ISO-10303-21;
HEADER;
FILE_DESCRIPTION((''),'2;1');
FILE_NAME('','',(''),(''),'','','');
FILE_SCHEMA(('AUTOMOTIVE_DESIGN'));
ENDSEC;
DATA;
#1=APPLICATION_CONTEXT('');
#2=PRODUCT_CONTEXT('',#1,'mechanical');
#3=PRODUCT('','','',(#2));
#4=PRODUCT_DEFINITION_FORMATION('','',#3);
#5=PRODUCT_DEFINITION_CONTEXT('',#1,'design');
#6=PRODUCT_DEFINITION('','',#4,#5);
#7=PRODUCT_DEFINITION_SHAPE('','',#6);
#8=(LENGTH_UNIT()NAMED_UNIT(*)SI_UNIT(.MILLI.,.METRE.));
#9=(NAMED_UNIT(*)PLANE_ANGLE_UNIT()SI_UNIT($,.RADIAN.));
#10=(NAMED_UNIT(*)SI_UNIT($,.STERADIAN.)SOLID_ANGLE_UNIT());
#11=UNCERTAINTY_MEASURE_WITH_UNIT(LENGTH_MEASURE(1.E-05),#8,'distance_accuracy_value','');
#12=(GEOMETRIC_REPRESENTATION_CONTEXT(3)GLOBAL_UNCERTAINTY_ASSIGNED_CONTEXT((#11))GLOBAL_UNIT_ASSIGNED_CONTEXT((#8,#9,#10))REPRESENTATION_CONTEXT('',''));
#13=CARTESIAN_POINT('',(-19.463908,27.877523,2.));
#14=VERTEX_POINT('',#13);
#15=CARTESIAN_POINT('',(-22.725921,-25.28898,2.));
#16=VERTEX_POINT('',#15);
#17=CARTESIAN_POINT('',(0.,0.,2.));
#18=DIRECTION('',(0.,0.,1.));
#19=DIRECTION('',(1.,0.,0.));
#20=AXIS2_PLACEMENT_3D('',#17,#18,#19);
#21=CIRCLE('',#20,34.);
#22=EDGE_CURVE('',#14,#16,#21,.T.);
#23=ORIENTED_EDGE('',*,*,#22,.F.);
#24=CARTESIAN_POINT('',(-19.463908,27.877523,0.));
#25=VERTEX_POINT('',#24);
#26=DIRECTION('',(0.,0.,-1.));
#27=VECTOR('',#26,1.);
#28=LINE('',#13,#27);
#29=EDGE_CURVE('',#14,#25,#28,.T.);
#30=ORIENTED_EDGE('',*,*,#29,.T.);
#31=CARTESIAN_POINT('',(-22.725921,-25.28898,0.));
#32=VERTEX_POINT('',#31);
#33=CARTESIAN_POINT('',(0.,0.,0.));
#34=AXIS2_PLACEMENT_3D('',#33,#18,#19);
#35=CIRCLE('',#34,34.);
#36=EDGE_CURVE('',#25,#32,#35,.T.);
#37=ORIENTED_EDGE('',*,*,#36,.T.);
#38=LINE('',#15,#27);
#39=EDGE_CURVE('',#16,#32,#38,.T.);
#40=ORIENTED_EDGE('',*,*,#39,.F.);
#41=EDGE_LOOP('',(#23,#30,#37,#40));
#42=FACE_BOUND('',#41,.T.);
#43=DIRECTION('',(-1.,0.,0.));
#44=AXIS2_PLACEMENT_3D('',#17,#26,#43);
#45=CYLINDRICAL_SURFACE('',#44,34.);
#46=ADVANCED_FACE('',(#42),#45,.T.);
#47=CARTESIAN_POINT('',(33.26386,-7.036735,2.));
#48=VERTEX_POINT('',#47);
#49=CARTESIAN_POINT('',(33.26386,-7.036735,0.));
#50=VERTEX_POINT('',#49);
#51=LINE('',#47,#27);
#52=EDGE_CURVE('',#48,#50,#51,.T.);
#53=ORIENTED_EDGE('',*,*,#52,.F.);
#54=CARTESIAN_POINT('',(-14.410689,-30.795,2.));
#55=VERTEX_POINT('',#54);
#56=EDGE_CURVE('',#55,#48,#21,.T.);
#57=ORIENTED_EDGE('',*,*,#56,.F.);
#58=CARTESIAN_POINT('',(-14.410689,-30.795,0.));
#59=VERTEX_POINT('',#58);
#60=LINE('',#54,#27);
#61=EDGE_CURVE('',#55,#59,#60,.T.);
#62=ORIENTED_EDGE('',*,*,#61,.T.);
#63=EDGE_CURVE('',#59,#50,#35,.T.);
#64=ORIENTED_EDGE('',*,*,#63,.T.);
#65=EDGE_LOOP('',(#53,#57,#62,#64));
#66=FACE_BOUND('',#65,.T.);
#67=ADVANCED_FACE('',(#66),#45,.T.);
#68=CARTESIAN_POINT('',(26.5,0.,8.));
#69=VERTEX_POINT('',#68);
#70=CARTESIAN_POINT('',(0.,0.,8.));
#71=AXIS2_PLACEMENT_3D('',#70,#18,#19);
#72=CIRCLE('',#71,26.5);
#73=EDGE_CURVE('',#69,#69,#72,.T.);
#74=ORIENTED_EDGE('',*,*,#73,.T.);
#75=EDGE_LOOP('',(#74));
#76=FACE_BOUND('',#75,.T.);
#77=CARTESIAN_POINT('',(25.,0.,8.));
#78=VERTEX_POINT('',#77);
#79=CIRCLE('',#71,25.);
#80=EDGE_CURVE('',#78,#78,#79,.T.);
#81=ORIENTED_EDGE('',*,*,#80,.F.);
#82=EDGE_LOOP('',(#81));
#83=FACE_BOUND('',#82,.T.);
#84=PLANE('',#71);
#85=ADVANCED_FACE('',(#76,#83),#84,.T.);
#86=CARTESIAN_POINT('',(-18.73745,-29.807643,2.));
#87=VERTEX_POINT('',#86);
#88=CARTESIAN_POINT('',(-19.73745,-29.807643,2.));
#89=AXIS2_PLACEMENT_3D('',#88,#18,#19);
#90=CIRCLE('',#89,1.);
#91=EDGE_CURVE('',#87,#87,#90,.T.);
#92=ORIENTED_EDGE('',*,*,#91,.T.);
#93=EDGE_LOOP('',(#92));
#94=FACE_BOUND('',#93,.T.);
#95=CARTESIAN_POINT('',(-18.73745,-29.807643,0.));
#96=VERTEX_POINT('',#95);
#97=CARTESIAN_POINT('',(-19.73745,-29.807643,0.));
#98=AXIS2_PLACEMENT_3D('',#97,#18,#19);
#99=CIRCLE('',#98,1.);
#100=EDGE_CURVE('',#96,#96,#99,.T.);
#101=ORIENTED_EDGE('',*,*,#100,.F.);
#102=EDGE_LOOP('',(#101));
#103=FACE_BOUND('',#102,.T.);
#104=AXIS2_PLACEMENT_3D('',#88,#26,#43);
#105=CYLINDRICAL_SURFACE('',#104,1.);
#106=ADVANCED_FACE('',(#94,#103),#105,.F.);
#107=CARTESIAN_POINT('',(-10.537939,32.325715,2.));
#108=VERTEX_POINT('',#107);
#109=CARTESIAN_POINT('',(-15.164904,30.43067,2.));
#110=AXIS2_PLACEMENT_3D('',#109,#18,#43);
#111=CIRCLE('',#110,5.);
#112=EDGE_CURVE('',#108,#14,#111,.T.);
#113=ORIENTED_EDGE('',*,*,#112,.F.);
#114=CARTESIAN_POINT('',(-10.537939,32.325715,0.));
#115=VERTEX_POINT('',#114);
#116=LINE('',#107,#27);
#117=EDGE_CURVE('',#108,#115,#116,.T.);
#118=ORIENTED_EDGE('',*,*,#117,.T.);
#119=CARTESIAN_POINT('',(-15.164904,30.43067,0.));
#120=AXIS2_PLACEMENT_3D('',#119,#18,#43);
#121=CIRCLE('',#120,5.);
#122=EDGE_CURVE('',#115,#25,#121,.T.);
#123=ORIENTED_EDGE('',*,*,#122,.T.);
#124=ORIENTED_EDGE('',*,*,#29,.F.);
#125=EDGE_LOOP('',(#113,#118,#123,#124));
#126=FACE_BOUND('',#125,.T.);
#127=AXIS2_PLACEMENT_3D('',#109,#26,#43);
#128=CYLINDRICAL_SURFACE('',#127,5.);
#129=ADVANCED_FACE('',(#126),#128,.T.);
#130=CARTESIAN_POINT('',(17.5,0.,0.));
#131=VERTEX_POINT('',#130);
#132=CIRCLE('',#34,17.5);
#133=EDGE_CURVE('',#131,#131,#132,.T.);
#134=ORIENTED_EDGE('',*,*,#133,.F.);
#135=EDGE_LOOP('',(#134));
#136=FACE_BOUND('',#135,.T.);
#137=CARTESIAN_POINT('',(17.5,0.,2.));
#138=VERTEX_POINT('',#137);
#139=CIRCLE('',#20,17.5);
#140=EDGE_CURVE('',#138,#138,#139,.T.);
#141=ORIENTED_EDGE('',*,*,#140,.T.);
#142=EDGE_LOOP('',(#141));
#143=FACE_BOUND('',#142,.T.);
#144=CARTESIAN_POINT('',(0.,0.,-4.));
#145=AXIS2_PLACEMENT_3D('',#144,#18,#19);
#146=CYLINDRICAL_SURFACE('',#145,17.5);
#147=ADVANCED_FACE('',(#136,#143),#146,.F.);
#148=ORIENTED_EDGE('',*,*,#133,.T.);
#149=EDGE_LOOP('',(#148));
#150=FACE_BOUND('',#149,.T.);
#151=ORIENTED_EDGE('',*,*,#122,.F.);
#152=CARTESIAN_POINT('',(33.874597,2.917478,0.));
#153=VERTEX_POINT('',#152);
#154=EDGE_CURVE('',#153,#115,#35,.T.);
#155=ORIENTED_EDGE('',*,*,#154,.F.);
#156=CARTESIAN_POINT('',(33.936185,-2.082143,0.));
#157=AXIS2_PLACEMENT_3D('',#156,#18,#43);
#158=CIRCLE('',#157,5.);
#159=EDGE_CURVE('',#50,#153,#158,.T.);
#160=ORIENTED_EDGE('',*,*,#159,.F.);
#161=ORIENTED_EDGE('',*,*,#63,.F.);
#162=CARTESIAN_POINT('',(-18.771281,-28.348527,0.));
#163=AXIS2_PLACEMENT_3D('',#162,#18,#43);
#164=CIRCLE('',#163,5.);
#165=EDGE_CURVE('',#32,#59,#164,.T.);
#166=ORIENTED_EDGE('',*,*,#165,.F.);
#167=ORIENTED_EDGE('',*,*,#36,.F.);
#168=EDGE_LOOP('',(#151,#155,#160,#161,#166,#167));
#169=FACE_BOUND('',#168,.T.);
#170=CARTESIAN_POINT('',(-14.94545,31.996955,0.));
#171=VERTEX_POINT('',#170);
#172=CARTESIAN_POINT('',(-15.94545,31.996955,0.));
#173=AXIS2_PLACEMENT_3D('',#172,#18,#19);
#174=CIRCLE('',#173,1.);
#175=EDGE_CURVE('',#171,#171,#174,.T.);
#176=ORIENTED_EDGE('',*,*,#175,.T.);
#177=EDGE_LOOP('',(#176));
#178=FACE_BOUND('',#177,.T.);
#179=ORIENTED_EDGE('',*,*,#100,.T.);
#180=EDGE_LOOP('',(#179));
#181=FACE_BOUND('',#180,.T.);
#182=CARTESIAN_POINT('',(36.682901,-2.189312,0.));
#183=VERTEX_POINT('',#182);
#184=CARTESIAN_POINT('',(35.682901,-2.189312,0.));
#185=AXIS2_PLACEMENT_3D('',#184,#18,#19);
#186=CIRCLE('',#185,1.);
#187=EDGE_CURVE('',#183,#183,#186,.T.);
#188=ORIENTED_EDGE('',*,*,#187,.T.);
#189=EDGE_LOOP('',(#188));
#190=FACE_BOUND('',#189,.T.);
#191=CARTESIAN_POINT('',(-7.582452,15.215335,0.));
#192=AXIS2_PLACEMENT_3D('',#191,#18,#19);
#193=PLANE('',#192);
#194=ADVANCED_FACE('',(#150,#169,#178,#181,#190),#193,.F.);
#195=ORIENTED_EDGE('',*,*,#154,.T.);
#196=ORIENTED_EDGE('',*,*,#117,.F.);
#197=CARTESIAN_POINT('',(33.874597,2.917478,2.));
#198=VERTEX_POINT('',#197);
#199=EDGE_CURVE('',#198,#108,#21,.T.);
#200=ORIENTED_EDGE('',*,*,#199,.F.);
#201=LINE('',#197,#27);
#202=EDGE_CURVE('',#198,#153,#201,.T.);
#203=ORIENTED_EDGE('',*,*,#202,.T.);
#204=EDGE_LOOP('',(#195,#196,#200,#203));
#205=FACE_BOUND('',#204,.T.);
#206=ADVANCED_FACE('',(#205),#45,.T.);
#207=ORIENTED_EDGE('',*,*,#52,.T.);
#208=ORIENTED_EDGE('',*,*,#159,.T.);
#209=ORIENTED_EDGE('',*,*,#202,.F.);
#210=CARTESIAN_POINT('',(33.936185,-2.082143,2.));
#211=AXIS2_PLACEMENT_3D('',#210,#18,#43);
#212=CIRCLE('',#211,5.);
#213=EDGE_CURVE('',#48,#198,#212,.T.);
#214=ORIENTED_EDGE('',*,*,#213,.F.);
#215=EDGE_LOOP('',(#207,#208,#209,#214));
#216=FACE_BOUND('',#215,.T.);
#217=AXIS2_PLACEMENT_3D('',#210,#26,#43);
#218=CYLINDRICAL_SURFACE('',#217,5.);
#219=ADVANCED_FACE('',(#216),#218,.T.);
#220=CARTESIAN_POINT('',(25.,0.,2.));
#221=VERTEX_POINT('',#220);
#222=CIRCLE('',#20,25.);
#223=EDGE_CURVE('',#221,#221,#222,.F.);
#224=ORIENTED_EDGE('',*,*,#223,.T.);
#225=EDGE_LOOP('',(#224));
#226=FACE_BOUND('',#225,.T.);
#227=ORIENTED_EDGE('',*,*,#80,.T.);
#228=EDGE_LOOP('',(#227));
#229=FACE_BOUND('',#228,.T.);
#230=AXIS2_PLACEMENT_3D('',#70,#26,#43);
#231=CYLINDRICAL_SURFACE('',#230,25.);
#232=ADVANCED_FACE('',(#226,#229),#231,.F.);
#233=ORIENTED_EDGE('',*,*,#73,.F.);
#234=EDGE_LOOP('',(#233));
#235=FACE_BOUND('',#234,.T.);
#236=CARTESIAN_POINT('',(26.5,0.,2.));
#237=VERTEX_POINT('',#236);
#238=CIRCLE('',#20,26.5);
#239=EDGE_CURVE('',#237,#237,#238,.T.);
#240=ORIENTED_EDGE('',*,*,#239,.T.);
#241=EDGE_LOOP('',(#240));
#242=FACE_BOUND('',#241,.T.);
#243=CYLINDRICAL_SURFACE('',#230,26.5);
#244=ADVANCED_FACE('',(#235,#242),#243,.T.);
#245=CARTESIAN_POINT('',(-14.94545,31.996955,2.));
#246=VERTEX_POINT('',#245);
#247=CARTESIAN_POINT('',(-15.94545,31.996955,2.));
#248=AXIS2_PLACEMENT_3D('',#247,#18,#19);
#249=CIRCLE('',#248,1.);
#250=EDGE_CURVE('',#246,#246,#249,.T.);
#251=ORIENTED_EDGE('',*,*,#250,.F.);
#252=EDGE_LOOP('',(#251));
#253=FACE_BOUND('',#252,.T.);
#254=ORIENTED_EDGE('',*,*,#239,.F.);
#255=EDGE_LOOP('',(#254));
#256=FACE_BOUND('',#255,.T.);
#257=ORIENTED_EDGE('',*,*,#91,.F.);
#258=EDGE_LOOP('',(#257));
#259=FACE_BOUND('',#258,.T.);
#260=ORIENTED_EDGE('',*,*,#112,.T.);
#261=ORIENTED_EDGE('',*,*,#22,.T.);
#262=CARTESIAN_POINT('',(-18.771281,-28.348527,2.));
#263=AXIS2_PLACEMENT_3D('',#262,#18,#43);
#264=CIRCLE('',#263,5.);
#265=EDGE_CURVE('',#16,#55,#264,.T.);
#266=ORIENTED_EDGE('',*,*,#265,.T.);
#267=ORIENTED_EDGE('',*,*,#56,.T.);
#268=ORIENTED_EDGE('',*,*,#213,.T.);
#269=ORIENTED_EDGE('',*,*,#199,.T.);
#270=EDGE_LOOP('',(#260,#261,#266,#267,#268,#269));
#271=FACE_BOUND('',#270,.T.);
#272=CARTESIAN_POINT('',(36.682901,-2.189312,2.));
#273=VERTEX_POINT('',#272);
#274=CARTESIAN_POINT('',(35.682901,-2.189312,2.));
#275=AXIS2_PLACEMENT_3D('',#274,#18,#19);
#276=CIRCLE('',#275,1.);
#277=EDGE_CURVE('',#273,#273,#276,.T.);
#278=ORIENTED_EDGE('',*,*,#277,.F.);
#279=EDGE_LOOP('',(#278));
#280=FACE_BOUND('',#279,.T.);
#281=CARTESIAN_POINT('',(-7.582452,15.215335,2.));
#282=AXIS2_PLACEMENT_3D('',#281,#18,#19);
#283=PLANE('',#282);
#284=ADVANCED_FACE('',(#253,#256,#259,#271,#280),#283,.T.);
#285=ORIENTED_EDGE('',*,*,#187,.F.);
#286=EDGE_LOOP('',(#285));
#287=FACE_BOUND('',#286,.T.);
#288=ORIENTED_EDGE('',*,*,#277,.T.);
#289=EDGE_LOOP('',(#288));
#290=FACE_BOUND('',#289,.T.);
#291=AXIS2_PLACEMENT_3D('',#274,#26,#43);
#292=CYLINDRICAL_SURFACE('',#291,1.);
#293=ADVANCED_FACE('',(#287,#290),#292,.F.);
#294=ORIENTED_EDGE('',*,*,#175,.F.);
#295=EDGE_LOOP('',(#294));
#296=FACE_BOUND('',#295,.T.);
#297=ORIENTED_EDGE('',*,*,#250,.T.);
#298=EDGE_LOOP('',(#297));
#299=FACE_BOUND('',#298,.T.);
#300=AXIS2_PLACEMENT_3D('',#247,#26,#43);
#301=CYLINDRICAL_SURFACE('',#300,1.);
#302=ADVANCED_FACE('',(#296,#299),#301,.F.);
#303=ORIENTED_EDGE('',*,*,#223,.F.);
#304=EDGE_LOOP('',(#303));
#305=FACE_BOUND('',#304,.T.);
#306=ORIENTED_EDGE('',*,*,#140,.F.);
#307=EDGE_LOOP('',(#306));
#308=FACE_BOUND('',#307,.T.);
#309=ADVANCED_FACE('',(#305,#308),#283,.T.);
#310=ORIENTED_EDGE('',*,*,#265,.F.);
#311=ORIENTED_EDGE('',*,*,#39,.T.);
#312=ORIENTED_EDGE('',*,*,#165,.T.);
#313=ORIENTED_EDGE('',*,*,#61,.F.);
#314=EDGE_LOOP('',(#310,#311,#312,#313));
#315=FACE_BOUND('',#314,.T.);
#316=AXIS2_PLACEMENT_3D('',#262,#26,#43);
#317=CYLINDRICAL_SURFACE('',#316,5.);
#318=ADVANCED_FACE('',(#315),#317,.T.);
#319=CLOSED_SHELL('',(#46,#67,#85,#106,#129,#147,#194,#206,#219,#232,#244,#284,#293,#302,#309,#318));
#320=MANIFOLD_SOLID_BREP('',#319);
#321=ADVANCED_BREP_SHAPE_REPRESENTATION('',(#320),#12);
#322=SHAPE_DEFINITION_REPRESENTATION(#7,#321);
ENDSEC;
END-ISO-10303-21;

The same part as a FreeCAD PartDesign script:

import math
import FreeCAD as App
import Part
import Sketcher

V = App.Vector
Q = App.Units.Quantity

doc = App.newDocument("Part")
body = doc.addObject("PartDesign::Body", "Body")

# Sketch on XY plane
sketch1 = body.newObject("Sketcher::SketchObject", "Sketch")
sketch1.AttachmentSupport = (doc.getObject("XY_Plane"), [""])
sketch1.MapMode = "FlatFace"
sketch1.addGeometry(Part.ArcOfCircle(Part.Circle(V(0, 0, 0), V(0, 0, 1), 34), math.radians(125), math.radians(228)), False)
sketch1.addGeometry(Part.ArcOfCircle(Part.Circle(V(-18.8, -28.3, 0), V(0, 0, 1), 5), math.radians(142), math.radians(331)), False)
sketch1.addGeometry(Part.ArcOfCircle(Part.Circle(V(0, 0, 0), V(0, 0, 1), 34), math.radians(-115), math.radians(-12)), False)
sketch1.addGeometry(Part.ArcOfCircle(Part.Circle(V(33.9, -2.1, 0), V(0, 0, 1), 5), math.radians(-98), math.radians(91)), False)
sketch1.addGeometry(Part.ArcOfCircle(Part.Circle(V(0, 0, 0), V(0, 0, 1), 34), math.radians(5), math.radians(108)), False)
sketch1.addGeometry(Part.ArcOfCircle(Part.Circle(V(-15.2, 30.4, 0), V(0, 0, 1), 5), math.radians(22), math.radians(211)), False)
sketch1.addGeometry(Part.Circle(V(-19.7, -29.8, 0), V(0, 0, 1), 1), False)
sketch1.addGeometry(Part.Circle(V(35.7, -2.2, 0), V(0, 0, 1), 1), False)
sketch1.addGeometry(Part.Circle(V(-15.9, 32, 0), V(0, 0, 1), 1), False)
sketch1.addConstraint(Sketcher.Constraint("Coincident", 0, 2, 1, 1))
sketch1.addConstraint(Sketcher.Constraint("Coincident", 1, 2, 2, 1))
sketch1.addConstraint(Sketcher.Constraint("Coincident", 2, 2, 3, 1))
sketch1.addConstraint(Sketcher.Constraint("Coincident", 3, 2, 4, 1))
sketch1.addConstraint(Sketcher.Constraint("Coincident", 4, 2, 5, 1))
sketch1.addConstraint(Sketcher.Constraint("Coincident", 5, 2, 0, 1))
sketch1.addConstraint(Sketcher.Constraint("Coincident", 0, 3, -1, 1))
sketch1.addConstraint(Sketcher.Constraint("Coincident", 2, 3, -1, 1))
sketch1.addConstraint(Sketcher.Constraint("Coincident", 4, 3, -1, 1))
sketch1.addConstraint(Sketcher.Constraint("Equal", 0, 2))
sketch1.addConstraint(Sketcher.Constraint("Equal", 1, 3))
sketch1.addConstraint(Sketcher.Constraint("Equal", 2, 4))
sketch1.addConstraint(Sketcher.Constraint("Equal", 3, 5))
sketch1.addConstraint(Sketcher.Constraint("Equal", 6, 7))
sketch1.addConstraint(Sketcher.Constraint("Equal", 7, 8))
sketch1.addConstraint(Sketcher.Constraint("Diameter", 6, Q("2 mm")))
sketch1.addConstraint(Sketcher.Constraint("Radius", 0, Q("34 mm")))
sketch1.addConstraint(Sketcher.Constraint("Radius", 1, Q("5 mm")))
sketch1.addConstraint(Sketcher.Constraint("DistanceY", 1, 2, -1, 1, Q("30.795 mm")))
sketch1.addConstraint(Sketcher.Constraint("DistanceX", -1, 1, 7, 3, Q("35.682901 mm")))
sketch1.addConstraint(Sketcher.Constraint("DistanceY", 6, 3, 3, 3, Q("27.725499 mm")))
sketch1.addConstraint(Sketcher.Constraint("DistanceX", 1, 3, -1, 1, Q("18.771281 mm")))
sketch1.addConstraint(Sketcher.Constraint("DistanceY", -1, 1, 5, 3, Q("30.43067 mm")))
sketch1.addConstraint(Sketcher.Constraint("DistanceX", 6, 3, -1, 1, Q("19.73745 mm")))
sketch1.addConstraint(Sketcher.Constraint("DistanceX", 8, 3, -1, 1, Q("15.94545 mm")))
sketch1.addConstraint(Sketcher.Constraint("DistanceX", -1, 1, 2, 2, Q("33.26386 mm")))
sketch1.addConstraint(Sketcher.Constraint("DistanceX", 4, 2, -1, 1, Q("10.537939 mm")))
sketch1.addConstraint(Sketcher.Constraint("DistanceX", 5, 3, 3, 3, Q("49.101089 mm")))
sketch1.addConstraint(Sketcher.Constraint("DistanceY", 7, 3, 3, 3, Q("0.107169 mm")))
sketch1.addConstraint(Sketcher.Constraint("DistanceY", 1, 3, 8, 3, Q("60.345482 mm")))
pad1 = body.newObject("PartDesign::Pad", "Pad")
pad1.Profile = sketch1
pad1.Length = 2

# Sketch on XY plane
sketch2 = body.newObject("Sketcher::SketchObject", "Sketch001")
sketch2.AttachmentSupport = (doc.getObject("XY_Plane"), [""])
sketch2.MapMode = "FlatFace"
sketch2.AttachmentOffset = App.Placement(V(0, 0, 2), App.Rotation())
sketch2.addGeometry(Part.Circle(V(0, 0, 0), V(0, 0, 1), 26), False)
sketch2.addGeometry(Part.Circle(V(0, 0, 0), V(0, 0, 1), 25), False)
sketch2.addConstraint(Sketcher.Constraint("Coincident", 0, 3, -1, 1))
sketch2.addConstraint(Sketcher.Constraint("Coincident", 1, 3, -1, 1))
sketch2.addConstraint(Sketcher.Constraint("Diameter", 0, Q("53 mm")))
sketch2.addConstraint(Sketcher.Constraint("Diameter", 1, Q("50 mm")))
pad2 = body.newObject("PartDesign::Pad", "Pad001")
pad2.Profile = sketch2
pad2.Length = 6

# Sketch on XY plane
sketch3 = body.newObject("Sketcher::SketchObject", "Sketch002")
sketch3.AttachmentSupport = (doc.getObject("XY_Plane"), [""])
sketch3.MapMode = "FlatFace"
sketch3.AttachmentOffset = App.Placement(V(0, 0, 2), App.Rotation())
sketch3.addGeometry(Part.Circle(V(0, 0, 0), V(0, 0, 1), 18), False)
sketch3.addConstraint(Sketcher.Constraint("Coincident", 0, 3, -1, 1))
sketch3.addConstraint(Sketcher.Constraint("Diameter", 0, Q("35 mm")))
pocket1 = body.newObject("PartDesign::Pocket", "Pocket")
pocket1.Profile = sketch3
pocket1.Length = 6

doc.recompute()
